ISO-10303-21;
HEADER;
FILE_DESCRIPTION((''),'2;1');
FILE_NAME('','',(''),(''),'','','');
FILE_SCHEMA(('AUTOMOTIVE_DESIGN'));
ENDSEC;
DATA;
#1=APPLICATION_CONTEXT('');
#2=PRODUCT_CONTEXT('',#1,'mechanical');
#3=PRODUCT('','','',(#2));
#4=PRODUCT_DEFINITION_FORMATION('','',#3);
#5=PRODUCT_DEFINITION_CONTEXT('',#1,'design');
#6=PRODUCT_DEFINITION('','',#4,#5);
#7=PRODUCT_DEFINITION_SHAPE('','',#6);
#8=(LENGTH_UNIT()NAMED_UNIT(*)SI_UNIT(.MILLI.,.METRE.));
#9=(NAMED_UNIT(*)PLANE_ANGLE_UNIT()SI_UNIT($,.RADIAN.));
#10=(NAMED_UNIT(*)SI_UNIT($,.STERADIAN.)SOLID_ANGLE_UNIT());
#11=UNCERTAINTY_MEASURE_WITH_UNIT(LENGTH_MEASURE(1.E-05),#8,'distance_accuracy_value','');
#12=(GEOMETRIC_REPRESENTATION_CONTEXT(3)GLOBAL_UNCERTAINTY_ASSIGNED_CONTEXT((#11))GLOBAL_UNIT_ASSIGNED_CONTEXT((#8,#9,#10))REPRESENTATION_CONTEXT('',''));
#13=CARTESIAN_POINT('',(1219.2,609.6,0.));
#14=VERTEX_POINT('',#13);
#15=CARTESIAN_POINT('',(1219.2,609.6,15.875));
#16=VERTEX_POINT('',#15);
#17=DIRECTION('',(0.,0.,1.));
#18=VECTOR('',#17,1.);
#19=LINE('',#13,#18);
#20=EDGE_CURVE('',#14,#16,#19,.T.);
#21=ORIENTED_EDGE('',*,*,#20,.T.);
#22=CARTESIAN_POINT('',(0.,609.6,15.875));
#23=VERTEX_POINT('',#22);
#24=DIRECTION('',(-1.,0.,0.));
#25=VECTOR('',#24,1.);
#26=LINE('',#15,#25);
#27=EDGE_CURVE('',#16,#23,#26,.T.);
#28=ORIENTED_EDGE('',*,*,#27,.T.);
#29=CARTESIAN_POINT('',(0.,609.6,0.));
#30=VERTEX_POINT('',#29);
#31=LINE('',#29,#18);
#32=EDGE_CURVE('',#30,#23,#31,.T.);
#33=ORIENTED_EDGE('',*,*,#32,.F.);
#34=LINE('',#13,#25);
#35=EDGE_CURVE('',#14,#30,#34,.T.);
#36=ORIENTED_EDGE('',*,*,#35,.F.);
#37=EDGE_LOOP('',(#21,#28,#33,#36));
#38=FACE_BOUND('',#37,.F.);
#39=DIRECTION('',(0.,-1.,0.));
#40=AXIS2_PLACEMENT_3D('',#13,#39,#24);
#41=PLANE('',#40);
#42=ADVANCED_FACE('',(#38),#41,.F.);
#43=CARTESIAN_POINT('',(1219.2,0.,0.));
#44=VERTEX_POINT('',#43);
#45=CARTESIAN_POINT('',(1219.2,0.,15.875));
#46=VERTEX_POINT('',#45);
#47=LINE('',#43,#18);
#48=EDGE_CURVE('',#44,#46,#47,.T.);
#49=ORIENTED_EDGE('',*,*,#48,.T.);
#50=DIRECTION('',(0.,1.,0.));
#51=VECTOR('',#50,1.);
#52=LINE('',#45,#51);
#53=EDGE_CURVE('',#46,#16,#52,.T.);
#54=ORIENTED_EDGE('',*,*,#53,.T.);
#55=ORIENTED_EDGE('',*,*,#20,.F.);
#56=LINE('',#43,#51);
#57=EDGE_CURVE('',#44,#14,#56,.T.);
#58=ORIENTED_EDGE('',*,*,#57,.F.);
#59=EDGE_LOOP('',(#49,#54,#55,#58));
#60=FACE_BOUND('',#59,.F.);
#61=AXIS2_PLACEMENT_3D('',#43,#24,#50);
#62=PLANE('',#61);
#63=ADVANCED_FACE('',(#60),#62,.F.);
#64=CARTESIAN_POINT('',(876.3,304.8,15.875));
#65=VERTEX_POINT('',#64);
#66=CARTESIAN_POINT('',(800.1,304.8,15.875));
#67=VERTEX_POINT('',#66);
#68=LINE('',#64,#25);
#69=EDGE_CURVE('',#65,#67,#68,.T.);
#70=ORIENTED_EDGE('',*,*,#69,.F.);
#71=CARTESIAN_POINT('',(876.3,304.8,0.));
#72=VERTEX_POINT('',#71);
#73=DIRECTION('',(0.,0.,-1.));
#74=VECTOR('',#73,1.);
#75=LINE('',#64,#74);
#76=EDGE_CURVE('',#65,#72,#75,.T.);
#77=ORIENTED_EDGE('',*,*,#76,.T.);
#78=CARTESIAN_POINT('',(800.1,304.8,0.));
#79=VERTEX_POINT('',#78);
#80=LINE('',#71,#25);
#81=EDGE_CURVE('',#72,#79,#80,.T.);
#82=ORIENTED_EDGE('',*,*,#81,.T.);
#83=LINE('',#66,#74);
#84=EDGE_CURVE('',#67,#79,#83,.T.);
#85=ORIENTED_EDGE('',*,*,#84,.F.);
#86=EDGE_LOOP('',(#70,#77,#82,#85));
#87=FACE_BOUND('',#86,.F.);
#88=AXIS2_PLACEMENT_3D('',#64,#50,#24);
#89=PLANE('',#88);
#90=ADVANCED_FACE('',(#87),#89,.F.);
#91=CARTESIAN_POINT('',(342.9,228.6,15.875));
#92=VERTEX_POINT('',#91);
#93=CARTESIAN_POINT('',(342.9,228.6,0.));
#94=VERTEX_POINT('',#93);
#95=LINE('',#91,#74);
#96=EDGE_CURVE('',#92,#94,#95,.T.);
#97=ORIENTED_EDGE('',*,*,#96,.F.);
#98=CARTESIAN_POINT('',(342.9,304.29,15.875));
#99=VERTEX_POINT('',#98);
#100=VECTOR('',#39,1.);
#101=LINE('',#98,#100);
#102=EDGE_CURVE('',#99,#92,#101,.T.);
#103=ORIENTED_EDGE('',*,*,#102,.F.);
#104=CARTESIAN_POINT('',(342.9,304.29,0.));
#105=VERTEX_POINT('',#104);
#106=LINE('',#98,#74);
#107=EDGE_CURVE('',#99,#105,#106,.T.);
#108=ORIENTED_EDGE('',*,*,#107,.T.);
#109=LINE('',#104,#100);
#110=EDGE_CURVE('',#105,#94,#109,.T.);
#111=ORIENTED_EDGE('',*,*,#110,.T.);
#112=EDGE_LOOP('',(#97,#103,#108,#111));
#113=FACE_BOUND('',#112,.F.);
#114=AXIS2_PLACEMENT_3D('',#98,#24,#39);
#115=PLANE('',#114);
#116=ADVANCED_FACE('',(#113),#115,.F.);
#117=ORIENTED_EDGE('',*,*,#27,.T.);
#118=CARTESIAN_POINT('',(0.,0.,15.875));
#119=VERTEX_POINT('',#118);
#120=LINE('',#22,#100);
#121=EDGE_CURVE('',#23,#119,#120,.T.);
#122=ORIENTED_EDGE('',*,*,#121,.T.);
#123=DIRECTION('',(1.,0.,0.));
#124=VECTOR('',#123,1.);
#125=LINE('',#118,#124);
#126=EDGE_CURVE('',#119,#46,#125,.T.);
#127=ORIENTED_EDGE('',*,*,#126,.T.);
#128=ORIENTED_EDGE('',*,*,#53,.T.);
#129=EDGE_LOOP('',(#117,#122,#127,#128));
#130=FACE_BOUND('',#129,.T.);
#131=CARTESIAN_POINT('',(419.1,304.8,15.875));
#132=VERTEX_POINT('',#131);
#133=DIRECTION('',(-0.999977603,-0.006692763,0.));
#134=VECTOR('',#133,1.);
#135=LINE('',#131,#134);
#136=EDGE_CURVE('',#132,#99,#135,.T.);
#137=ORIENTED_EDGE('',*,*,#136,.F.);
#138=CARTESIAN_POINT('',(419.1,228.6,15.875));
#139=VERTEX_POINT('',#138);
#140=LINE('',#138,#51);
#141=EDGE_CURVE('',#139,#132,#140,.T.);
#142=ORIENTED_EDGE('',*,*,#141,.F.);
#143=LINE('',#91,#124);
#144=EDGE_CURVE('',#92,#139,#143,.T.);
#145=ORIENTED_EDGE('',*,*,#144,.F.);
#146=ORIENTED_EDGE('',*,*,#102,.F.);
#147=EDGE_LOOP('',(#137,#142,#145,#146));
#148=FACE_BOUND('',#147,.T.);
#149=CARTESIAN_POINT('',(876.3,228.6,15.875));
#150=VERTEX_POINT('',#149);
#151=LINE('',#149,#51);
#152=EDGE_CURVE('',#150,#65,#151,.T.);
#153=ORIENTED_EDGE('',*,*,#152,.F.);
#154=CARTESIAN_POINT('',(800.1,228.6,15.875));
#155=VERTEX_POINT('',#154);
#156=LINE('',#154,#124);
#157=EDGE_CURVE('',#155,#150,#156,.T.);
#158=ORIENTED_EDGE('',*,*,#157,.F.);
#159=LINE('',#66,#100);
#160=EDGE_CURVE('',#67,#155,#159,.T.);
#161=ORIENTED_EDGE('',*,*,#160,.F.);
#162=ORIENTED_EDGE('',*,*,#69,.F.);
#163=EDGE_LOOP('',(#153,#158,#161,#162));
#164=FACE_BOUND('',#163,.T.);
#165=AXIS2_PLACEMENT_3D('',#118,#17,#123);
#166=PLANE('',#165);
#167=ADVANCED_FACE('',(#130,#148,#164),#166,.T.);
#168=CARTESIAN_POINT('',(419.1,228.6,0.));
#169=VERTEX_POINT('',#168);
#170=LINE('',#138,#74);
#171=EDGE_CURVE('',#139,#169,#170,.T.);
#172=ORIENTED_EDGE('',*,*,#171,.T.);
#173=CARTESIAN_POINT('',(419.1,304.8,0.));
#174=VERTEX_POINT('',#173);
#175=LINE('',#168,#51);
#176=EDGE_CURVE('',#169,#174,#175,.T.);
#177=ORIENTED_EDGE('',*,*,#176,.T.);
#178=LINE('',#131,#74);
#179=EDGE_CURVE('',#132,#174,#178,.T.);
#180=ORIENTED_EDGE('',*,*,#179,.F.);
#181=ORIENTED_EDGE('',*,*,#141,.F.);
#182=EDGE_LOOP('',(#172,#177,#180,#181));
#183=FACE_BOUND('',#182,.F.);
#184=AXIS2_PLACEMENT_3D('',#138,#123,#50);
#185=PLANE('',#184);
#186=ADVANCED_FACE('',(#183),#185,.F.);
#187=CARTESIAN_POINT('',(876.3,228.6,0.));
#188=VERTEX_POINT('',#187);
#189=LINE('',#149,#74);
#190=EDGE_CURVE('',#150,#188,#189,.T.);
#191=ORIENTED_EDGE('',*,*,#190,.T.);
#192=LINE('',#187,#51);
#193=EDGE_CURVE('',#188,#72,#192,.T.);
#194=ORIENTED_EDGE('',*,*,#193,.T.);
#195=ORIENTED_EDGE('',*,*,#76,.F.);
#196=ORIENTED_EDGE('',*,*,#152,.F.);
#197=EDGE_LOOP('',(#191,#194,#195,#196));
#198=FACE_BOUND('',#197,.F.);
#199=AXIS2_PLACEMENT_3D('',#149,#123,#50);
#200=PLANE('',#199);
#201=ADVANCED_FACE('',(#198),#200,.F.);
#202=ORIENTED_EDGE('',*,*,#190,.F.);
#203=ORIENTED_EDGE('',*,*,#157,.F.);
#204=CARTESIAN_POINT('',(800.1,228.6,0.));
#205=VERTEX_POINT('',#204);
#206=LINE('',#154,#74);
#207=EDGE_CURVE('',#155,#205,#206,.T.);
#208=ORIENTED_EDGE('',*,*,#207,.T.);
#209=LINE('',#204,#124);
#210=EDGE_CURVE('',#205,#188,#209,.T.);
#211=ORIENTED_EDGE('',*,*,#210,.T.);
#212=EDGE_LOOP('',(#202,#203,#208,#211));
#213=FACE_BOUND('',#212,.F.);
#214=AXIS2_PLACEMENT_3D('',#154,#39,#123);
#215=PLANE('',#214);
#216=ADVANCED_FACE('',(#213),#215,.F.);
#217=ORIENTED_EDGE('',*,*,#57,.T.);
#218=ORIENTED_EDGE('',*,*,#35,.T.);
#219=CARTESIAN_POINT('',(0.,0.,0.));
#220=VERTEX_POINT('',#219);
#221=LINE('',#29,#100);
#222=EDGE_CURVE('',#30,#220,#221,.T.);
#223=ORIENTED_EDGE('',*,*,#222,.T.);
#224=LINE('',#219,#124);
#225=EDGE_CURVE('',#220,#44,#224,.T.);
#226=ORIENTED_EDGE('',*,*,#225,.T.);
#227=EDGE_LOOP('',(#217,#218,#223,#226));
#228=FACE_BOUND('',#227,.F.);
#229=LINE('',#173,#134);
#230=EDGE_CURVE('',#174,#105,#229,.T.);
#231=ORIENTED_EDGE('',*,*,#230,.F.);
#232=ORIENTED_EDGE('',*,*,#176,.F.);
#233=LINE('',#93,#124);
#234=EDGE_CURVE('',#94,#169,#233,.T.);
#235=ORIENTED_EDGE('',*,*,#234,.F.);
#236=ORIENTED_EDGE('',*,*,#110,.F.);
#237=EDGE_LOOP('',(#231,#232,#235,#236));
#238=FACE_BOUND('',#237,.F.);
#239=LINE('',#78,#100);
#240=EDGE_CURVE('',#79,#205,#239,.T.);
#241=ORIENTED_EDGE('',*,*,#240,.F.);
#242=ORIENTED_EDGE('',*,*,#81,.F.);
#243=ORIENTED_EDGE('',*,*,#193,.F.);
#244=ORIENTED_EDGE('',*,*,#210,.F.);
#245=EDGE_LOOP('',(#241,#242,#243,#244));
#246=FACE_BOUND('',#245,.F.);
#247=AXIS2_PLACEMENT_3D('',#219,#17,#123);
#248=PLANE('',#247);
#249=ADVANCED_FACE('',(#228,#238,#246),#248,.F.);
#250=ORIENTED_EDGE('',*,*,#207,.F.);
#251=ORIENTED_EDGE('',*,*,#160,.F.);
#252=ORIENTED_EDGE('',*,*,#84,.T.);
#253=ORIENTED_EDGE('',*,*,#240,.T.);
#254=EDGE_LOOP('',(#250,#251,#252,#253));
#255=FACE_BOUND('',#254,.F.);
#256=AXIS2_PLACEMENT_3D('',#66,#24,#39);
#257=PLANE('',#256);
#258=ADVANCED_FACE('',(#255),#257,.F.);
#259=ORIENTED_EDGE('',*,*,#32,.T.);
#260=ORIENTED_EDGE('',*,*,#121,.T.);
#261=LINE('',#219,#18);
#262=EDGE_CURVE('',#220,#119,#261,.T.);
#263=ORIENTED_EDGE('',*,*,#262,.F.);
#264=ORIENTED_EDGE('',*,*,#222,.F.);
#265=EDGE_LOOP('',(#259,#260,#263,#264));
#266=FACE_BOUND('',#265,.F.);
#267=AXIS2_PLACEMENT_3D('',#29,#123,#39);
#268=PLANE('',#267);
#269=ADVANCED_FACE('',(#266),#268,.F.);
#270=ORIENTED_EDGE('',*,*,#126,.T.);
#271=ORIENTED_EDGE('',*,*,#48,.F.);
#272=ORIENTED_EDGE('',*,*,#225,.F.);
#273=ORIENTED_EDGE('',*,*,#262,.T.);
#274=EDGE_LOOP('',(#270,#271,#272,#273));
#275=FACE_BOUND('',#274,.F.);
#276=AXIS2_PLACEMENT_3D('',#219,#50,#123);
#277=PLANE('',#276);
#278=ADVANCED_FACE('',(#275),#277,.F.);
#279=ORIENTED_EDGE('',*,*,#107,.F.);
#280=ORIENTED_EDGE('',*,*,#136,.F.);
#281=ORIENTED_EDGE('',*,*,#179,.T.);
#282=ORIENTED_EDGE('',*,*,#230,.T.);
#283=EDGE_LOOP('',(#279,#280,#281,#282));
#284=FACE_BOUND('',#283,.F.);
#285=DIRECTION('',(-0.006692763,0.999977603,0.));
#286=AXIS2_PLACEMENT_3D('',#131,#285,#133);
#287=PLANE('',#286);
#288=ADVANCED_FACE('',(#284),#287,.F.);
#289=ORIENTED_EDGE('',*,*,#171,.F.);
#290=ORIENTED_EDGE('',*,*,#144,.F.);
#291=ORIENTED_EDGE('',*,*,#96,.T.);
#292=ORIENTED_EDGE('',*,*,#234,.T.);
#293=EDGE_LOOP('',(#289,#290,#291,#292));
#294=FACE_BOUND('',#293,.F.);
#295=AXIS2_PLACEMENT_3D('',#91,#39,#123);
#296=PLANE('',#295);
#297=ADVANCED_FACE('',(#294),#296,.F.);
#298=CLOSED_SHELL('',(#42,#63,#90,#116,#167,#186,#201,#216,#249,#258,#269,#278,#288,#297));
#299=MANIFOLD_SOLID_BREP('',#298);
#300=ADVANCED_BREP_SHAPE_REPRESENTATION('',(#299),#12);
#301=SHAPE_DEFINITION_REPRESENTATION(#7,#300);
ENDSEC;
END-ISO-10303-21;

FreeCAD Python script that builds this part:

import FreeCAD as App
import Part
import Sketcher

V = App.Vector
Q = App.Units.Quantity

doc = App.newDocument("Part")
params = doc.addObject("Spreadsheet::Sheet", "Params")
for row, (alias, value) in enumerate([
    ("sketch1_width", "48 in"),
    ("sketch1_height", "24 in"),
    ("pad1_length", "0.625 in"),
    ("sketch2_width", "3 in"),
    ("pocket1_length", "0.625 in"),
], start=1):
    params.set(f"A{row}", alias)
    params.set(f"B{row}", "=" + value)
    params.setAlias(f"B{row}", alias)

body = doc.addObject("PartDesign::Body", "Body")

sketch1 = body.newObject("Sketcher::SketchObject", "Sketch")
sketch1.AttachmentSupport = (doc.getObject("XY_Plane"), [""])
sketch1.MapMode = "FlatFace"
sketch1.addGeometry([
    Part.LineSegment(V(0, 610, 0), V(0, 0, 0)),
    Part.LineSegment(V(0, 0, 0), V(1219, 0, 0)),
    Part.LineSegment(V(1219, 0, 0), V(1219, 610, 0)),
    Part.LineSegment(V(1219, 610, 0), V(0, 610, 0)),
], False)
sketch1.addConstraint([
    Sketcher.Constraint("Coincident", 0, 2, 1, 1),
    Sketcher.Constraint("Coincident", 1, 2, 2, 1),
    Sketcher.Constraint("Coincident", 2, 2, 3, 1),
    Sketcher.Constraint("Coincident", 3, 2, 0, 1),
    Sketcher.Constraint("Vertical", 0),
    Sketcher.Constraint("Horizontal", 1),
    Sketcher.Constraint("Vertical", 2),
    Sketcher.Constraint("Horizontal", 3),
    Sketcher.Constraint("Coincident", 0, 2, -1, 1),
    Sketcher.Constraint("DistanceX", 1, 1, 1, 2, Q("48 in")),
    Sketcher.Constraint("DistanceY", 0, 2, 0, 1, Q("24 in")),
])
sketch1.setExpression("Constraints[9]", "Params.sketch1_width")
sketch1.setExpression("Constraints[10]", "Params.sketch1_height")
pad1 = body.newObject("PartDesign::Pad", "Pad")
pad1.Profile = sketch1
pad1.setExpression("Length", "Params.pad1_length")

sketch2 = body.newObject("Sketcher::SketchObject", "Sketch001")
sketch2.AttachmentSupport = (doc.getObject("XY_Plane"), [""])
sketch2.MapMode = "FlatFace"
sketch2.AttachmentOffset = App.Placement(V(0, 0, 0.625 * 25.4), App.Rotation())
sketch2.addGeometry([
    Part.LineSegment(V(343, 304, 0), V(343, 229, 0)),
    Part.LineSegment(V(343, 229, 0), V(419, 229, 0)),
    Part.LineSegment(V(419, 229, 0), V(419, 305, 0)),
    Part.LineSegment(V(419, 305, 0), V(343, 304, 0)),
    Part.LineSegment(V(800, 229, 0), V(876, 229, 0)),
    Part.LineSegment(V(876, 229, 0), V(876, 305, 0)),
    Part.LineSegment(V(876, 305, 0), V(800, 305, 0)),
    Part.LineSegment(V(800, 305, 0), V(800, 229, 0)),
], False)
sketch2.addConstraint([
    Sketcher.Constraint("Coincident", 0, 2, 1, 1),
    Sketcher.Constraint("Coincident", 1, 2, 2, 1),
    Sketcher.Constraint("Coincident", 2, 2, 3, 1),
    Sketcher.Constraint("Coincident", 3, 2, 0, 1),
    Sketcher.Constraint("Coincident", 4, 2, 5, 1),
    Sketcher.Constraint("Coincident", 5, 2, 6, 1),
    Sketcher.Constraint("Coincident", 6, 2, 7, 1),
    Sketcher.Constraint("Coincident", 7, 2, 4, 1),
    Sketcher.Constraint("Vertical", 0),
    Sketcher.Constraint("Horizontal", 1),
    Sketcher.Constraint("Vertical", 2),
    Sketcher.Constraint("Horizontal", 4),
    Sketcher.Constraint("Vertical", 5),
    Sketcher.Constraint("Horizontal", 6),
    Sketcher.Constraint("Vertical", 7),
    Sketcher.Constraint("Horizontal", 1, 2, 4, 2),
    Sketcher.Constraint("Horizontal", 2, 2, 5, 2),
    Sketcher.Constraint("Equal", 1, 4),
    Sketcher.Constraint("Equal", 6, 2),
    Sketcher.Constraint("DistanceX", 1, 1, 1, 2, Q("3 in")),
    Sketcher.Constraint("DistanceY", -1, 1, 0, 2, Q("9 in")),
    Sketcher.Constraint("DistanceX", 1, 2, 4, 2, Q("18 in")),
    Sketcher.Constraint("DistanceX", -1, 1, 0, 2, Q("13.5 in")),
    Sketcher.Constraint("DistanceY", 0, 2, 0, 1, Q("75.69 mm")),
])
sketch2.setExpression("Constraints[19]", "Params.sketch2_width")
pocket1 = body.newObject("PartDesign::Pocket", "Pocket")
pocket1.Profile = sketch2
pocket1.setExpression("Length", "Params.pocket1_length")

doc.recompute()
